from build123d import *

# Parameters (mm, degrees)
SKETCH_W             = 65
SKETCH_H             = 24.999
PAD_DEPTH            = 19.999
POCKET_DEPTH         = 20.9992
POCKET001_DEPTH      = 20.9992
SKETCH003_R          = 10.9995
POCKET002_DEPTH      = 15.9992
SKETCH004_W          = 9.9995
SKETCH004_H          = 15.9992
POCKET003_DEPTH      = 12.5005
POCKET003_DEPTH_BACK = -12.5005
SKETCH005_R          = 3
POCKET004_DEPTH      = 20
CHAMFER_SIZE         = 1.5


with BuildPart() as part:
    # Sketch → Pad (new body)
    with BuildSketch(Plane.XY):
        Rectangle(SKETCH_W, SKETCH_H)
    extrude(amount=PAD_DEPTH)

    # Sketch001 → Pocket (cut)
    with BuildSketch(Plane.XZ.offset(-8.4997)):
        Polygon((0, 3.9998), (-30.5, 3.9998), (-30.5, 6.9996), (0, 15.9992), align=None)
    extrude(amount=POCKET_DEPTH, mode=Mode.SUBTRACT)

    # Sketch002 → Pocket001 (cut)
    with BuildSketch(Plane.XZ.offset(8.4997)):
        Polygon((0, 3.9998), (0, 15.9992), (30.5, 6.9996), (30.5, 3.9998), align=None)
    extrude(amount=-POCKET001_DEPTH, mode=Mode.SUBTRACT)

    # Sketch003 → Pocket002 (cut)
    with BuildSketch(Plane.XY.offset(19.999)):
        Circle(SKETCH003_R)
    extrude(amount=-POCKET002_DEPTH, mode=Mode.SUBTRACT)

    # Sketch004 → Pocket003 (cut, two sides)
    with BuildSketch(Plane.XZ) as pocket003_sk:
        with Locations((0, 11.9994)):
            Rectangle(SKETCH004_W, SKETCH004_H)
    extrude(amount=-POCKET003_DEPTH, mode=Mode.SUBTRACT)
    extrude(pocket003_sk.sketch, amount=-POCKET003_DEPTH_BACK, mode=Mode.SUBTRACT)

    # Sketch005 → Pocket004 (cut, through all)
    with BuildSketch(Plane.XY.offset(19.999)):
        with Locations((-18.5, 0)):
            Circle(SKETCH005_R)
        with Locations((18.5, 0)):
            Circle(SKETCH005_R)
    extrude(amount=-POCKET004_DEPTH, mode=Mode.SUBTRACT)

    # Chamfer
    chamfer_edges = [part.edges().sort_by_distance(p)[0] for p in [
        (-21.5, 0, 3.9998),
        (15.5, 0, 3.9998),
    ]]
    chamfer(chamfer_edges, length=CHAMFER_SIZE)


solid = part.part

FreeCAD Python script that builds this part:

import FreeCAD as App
import Part
import Sketcher
from FreeCAD import Vector


def edges_at(feature, points):
    """Names of the edges that pass closest to the given points."""
    edges = feature.Shape.Edges
    near = lambda p: min(range(len(edges)), key=lambda i: edges[i].distToShape(Part.Vertex(*p))[0])
    return sorted({f"Edge{near(p) + 1}" for p in points})

doc = App.newDocument("Part")
params = doc.addObject("Spreadsheet::Sheet", "Params")
for row, (alias, value) in enumerate([
    ("sketch1_width", "65 mm"),
    ("pad1_length", "19.999 mm"),
    ("sketch2_width", "30.5 mm"),
    ("pocket1_length", "20.9992 mm"),
    ("sketch3_width", "30.5 mm"),
    ("pocket2_length", "20.9992 mm"),
    ("pocket3_length", "15.9992 mm"),
    ("sketch6_diameter", "6 mm"),
    ("chamfer_size", "1.5 mm"),
], start=1):
    params.set(f"A{row}", alias)
    params.set(f"B{row}", "=" + value)
    params.setAlias(f"B{row}", alias)

body = doc.addObject("PartDesign::Body", "Body")

# Sketch on XY plane
sketch1 = body.newObject("Sketcher::SketchObject", "Sketch")
sketch1.AttachmentSupport = (doc.getObject("XY_Plane"), [""])
sketch1.MapMode = "FlatFace"
sketch1.addGeometry([
    Part.LineSegment(Vector(-32.5, 12.4995, 0), Vector(-32.5, -12.4995, 0)),
    Part.LineSegment(Vector(-32.5, -12.4995, 0), Vector(32.5, -12.4995, 0)),
    Part.LineSegment(Vector(32.5, -12.4995, 0), Vector(32.5, 12.4995, 0)),
    Part.LineSegment(Vector(32.5, 12.4995, 0), Vector(-32.5, 12.4995, 0)),
], False)
sketch1.addConstraint([
    Sketcher.Constraint("Coincident", 0, 2, 1, 1),
    Sketcher.Constraint("Coincident", 1, 2, 2, 1),
    Sketcher.Constraint("Coincident", 2, 2, 3, 1),
    Sketcher.Constraint("Coincident", 3, 2, 0, 1),
    Sketcher.Constraint("Vertical", 0),
    Sketcher.Constraint("Horizontal", 1),
    Sketcher.Constraint("Vertical", 2),
    Sketcher.Constraint("Horizontal", 3),
    Sketcher.Constraint("Symmetric", 0, 2, 2, 2, -1, 1),
    Sketcher.Constraint("DistanceX", 1, 1, 1, 2, 65.0),
    Sketcher.Constraint("DistanceY", 0, 2, 0, 1, 24.999),
])
sketch1.setExpression("Constraints[9]", "Params.sketch1_width")
pad1 = body.newObject("PartDesign::Pad", "Pad")
pad1.Profile = sketch1
pad1.setExpression("Length", "Params.pad1_length")

# Sketch on XZ plane
sketch2 = body.newObject("Sketcher::SketchObject", "Sketch001")
sketch2.AttachmentSupport = (doc.getObject("XZ_Plane"), [""])
sketch2.MapMode = "FlatFace"
sketch2.AttachmentOffset = App.Placement(Vector(0, 0, -8.4997), App.Rotation())
sketch2.addGeometry([
    Part.LineSegment(Vector(-30.5, 3.9998, 0), Vector(0, 3.9998, 0)),
    Part.LineSegment(Vector(0, 3.9998, 0), Vector(0, 15.9992, 0)),
    Part.LineSegment(Vector(0, 15.9992, 0), Vector(-30.5, 6.9996, 0)),
    Part.LineSegment(Vector(-30.5, 6.9996, 0), Vector(-30.5, 3.9998, 0)),
], False)
sketch2.addConstraint([
    Sketcher.Constraint("Coincident", 0, 2, 1, 1),
    Sketcher.Constraint("Coincident", 1, 2, 2, 1),
    Sketcher.Constraint("Coincident", 2, 2, 3, 1),
    Sketcher.Constraint("Coincident", 3, 2, 0, 1),
    Sketcher.Constraint("Horizontal", 0),
    Sketcher.Constraint("Vertical", 1),
    Sketcher.Constraint("Vertical", 3),
    Sketcher.Constraint("PointOnObject", 0, 2, -2),
    Sketcher.Constraint("DistanceX", 0, 1, 0, 2, 30.5),
    Sketcher.Constraint("DistanceY", 1, 1, 1, 2, 11.9994),
    Sketcher.Constraint("DistanceY", 3, 2, 3, 1, 2.9998),
    Sketcher.Constraint("DistanceY", -1, 1, 0, 2, 3.9998),
])
sketch2.setExpression("Constraints[8]", "Params.sketch2_width")
pocket1 = body.newObject("PartDesign::Pocket", "Pocket")
pocket1.Profile = sketch2
pocket1.setExpression("Length", "Params.pocket1_length")
pocket1.Reversed = True

# Sketch on XZ plane
sketch3 = body.newObject("Sketcher::SketchObject", "Sketch002")
sketch3.AttachmentSupport = (doc.getObject("XZ_Plane"), [""])
sketch3.MapMode = "FlatFace"
sketch3.AttachmentOffset = App.Placement(Vector(0, 0, 8.4997), App.Rotation())
sketch3.addGeometry([
    Part.LineSegment(Vector(0, 15.9992, 0), Vector(0, 3.9998, 0)),
    Part.LineSegment(Vector(0, 3.9998, 0), Vector(30.5, 3.9998, 0)),
    Part.LineSegment(Vector(30.5, 3.9998, 0), Vector(30.5, 6.9996, 0)),
    Part.LineSegment(Vector(30.5, 6.9996, 0), Vector(0, 15.9992, 0)),
], False)
sketch3.addConstraint([
    Sketcher.Constraint("Coincident", 0, 2, 1, 1),
    Sketcher.Constraint("Coincident", 1, 2, 2, 1),
    Sketcher.Constraint("Coincident", 2, 2, 3, 1),
    Sketcher.Constraint("Coincident", 3, 2, 0, 1),
    Sketcher.Constraint("Vertical", 0),
    Sketcher.Constraint("Horizontal", 1),
    Sketcher.Constraint("Vertical", 2),
    Sketcher.Constraint("PointOnObject", 0, 2, -2),
    Sketcher.Constraint("DistanceX", 1, 1, 1, 2, 30.5),
    Sketcher.Constraint("DistanceY", 0, 2, 0, 1, 11.9994),
    Sketcher.Constraint("DistanceY", 2, 1, 2, 2, 2.9998),
    Sketcher.Constraint("DistanceY", -1, 1, 0, 2, 3.9998),
])
sketch3.setExpression("Constraints[8]", "Params.sketch3_width")
pocket2 = body.newObject("PartDesign::Pocket", "Pocket001")
pocket2.Profile = sketch3
pocket2.setExpression("Length", "Params.pocket2_length")

# Sketch on XY plane
sketch4 = body.newObject("Sketcher::SketchObject", "Sketch003")
sketch4.AttachmentSupport = (doc.getObject("XY_Plane"), [""])
sketch4.MapMode = "FlatFace"
sketch4.AttachmentOffset = App.Placement(Vector(0, 0, 19.999), App.Rotation())
sketch4.addGeometry(Part.Circle(Vector(0, 0, 0), Vector(0, 0, 1), 10.9995), False)
sketch4.addConstraint([
    Sketcher.Constraint("Coincident", 0, 3, -1, 1),
    Sketcher.Constraint("Diameter", 0, 21.999),
])
pocket3 = body.newObject("PartDesign::Pocket", "Pocket002")
pocket3.Profile = sketch4
pocket3.setExpression("Length", "Params.pocket3_length")

# Sketch on XZ plane
sketch5 = body.newObject("Sketcher::SketchObject", "Sketch004")
sketch5.AttachmentSupport = (doc.getObject("XZ_Plane"), [""])
sketch5.MapMode = "FlatFace"
sketch5.addGeometry([
    Part.LineSegment(Vector(-4.99975, 19.999, 0), Vector(-4.99975, 3.9998, 0)),
    Part.LineSegment(Vector(-4.99975, 3.9998, 0), Vector(4.99975, 3.9998, 0)),
    Part.LineSegment(Vector(4.99975, 3.9998, 0), Vector(4.99975, 19.999, 0)),
    Part.LineSegment(Vector(4.99975, 19.999, 0), Vector(-4.99975, 19.999, 0)),
], False)
sketch5.addConstraint([
    Sketcher.Constraint("Coincident", 0, 2, 1, 1),
    Sketcher.Constraint("Coincident", 1, 2, 2, 1),
    Sketcher.Constraint("Coincident", 2, 2, 3, 1),
    Sketcher.Constraint("Coincident", 3, 2, 0, 1),
    Sketcher.Constraint("Vertical", 0),
    Sketcher.Constraint("Horizontal", 1),
    Sketcher.Constraint("Vertical", 2),
    Sketcher.Constraint("Horizontal", 3),
    Sketcher.Constraint("DistanceX", 1, 1, 1, 2, 9.9995),
    Sketcher.Constraint("DistanceY", 0, 2, 0, 1, 15.9992),
    Sketcher.Constraint("DistanceY", -1, 1, 2, 2, 19.999),
    Sketcher.Constraint("DistanceX", 0, 2, -1, 1, 4.99975),
])
pocket4 = body.newObject("PartDesign::Pocket", "Pocket003")
pocket4.Profile = sketch5
pocket4.Type = "ThroughAll"
pocket4.Midplane = True

# Sketch on XY plane
sketch6 = body.newObject("Sketcher::SketchObject", "Sketch005")
sketch6.AttachmentSupport = (doc.getObject("XY_Plane"), [""])
sketch6.MapMode = "FlatFace"
sketch6.AttachmentOffset = App.Placement(Vector(0, 0, 19.999), App.Rotation())
sketch6.addGeometry([
    Part.Circle(Vector(-18.5, 0, 0), Vector(0, 0, 1), 3),
    Part.Circle(Vector(18.5, 0, 0), Vector(0, 0, 1), 3),
], False)
sketch6.addConstraint([
    Sketcher.Constraint("Equal", 0, 1),
    Sketcher.Constraint("Symmetric", 0, 3, 1, 3, -1, 1),
    Sketcher.Constraint("PointOnObject", 0, 3, -1),
    Sketcher.Constraint("Diameter", 0, 6.0),
    Sketcher.Constraint("DistanceX", 0, 3, 1, 3, 37.0),
])
sketch6.setExpression("Constraints[3]", "Params.sketch6_diameter")
pocket5 = body.newObject("PartDesign::Pocket", "Pocket004")
pocket5.Profile = sketch6
pocket5.Type = "ThroughAll"
doc.recompute()

chamfer = body.newObject("PartDesign::Chamfer", "Chamfer")
chamfer.Base = (pocket5, edges_at(pocket5, [(-21.5, 0, 4), (15.5, 0, 4)]))
chamfer.setExpression("Size", "Params.chamfer_size")

doc.recompute()
